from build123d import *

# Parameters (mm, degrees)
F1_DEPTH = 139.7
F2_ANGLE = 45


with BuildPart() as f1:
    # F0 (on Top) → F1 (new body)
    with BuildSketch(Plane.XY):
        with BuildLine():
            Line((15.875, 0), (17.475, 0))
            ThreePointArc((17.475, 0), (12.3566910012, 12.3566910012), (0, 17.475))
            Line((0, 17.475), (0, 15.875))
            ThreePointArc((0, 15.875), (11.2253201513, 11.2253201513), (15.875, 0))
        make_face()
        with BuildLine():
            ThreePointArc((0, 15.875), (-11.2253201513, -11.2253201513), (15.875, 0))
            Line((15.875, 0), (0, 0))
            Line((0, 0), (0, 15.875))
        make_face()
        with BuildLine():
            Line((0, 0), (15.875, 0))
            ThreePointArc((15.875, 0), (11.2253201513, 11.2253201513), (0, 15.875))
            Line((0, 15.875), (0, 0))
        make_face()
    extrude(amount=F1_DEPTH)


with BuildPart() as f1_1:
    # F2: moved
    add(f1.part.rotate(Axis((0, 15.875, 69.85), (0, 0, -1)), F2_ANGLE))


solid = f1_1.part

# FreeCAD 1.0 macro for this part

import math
import FreeCAD as App
import Part
import Sketcher
from FreeCAD import Vector
Q = App.Units.Quantity

doc = App.newDocument("Part")
body = doc.addObject("PartDesign::Body", "Body")

# Sketch on XY plane
sketch1 = body.newObject("Sketcher::SketchObject", "Sketch")
sketch1.AttachmentSupport = (doc.getObject("XY_Plane"), [""])
sketch1.MapMode = "FlatFace"
sketch1.addGeometry([
    Part.LineSegment(Vector(15.9, 0, 0), Vector(17.5, 0, 0)),
    Part.ArcOfCircle(Part.Circle(Vector(0, 0, 0), Vector(0, 0, 1), 17.5), math.radians(0), math.radians(90)),
    Part.LineSegment(Vector(0, 17.5, 0), Vector(0, 15.9, 0)),
    Part.ArcOfCircle(Part.Circle(Vector(0, 0, 0), Vector(0, 0, 1), 15.9), math.radians(90), math.radians(360)),
], False)
sketch1.addConstraint([
    Sketcher.Constraint("Coincident", 0, 2, 1, 1),
    Sketcher.Constraint("Coincident", 1, 2, 2, 1),
    Sketcher.Constraint("Coincident", 2, 2, 3, 1),
    Sketcher.Constraint("Coincident", 3, 2, 0, 1),
    Sketcher.Constraint("Horizontal", 0),
    Sketcher.Constraint("Vertical", 2),
    Sketcher.Constraint("Coincident", 1, 3, -1, 1),
    Sketcher.Constraint("Coincident", 3, 3, -1, 1),
    Sketcher.Constraint("PointOnObject", 0, 2, -1),
    Sketcher.Constraint("PointOnObject", 1, 2, -2),
    Sketcher.Constraint("Radius", 3, Q("0.625 in")),
    Sketcher.Constraint("Radius", 1, Q("17.475 mm")),
])
pad1 = body.newObject("PartDesign::Pad", "Pad")
pad1.Profile = sketch1
pad1.Length = Q("5.5 in")
body2 = doc.addObject("PartDesign::Body", "Body001")
doc.recompute()

body.Placement = App.Placement(Vector(-11.22532, 4.64968, 0), App.Rotation(Vector(0, 0, -1), 45))
boolean = body2.newObject("PartDesign::Boolean", "Boolean")
boolean.Type = "Fuse"
boolean.addObjects([body])

doc.recompute()
